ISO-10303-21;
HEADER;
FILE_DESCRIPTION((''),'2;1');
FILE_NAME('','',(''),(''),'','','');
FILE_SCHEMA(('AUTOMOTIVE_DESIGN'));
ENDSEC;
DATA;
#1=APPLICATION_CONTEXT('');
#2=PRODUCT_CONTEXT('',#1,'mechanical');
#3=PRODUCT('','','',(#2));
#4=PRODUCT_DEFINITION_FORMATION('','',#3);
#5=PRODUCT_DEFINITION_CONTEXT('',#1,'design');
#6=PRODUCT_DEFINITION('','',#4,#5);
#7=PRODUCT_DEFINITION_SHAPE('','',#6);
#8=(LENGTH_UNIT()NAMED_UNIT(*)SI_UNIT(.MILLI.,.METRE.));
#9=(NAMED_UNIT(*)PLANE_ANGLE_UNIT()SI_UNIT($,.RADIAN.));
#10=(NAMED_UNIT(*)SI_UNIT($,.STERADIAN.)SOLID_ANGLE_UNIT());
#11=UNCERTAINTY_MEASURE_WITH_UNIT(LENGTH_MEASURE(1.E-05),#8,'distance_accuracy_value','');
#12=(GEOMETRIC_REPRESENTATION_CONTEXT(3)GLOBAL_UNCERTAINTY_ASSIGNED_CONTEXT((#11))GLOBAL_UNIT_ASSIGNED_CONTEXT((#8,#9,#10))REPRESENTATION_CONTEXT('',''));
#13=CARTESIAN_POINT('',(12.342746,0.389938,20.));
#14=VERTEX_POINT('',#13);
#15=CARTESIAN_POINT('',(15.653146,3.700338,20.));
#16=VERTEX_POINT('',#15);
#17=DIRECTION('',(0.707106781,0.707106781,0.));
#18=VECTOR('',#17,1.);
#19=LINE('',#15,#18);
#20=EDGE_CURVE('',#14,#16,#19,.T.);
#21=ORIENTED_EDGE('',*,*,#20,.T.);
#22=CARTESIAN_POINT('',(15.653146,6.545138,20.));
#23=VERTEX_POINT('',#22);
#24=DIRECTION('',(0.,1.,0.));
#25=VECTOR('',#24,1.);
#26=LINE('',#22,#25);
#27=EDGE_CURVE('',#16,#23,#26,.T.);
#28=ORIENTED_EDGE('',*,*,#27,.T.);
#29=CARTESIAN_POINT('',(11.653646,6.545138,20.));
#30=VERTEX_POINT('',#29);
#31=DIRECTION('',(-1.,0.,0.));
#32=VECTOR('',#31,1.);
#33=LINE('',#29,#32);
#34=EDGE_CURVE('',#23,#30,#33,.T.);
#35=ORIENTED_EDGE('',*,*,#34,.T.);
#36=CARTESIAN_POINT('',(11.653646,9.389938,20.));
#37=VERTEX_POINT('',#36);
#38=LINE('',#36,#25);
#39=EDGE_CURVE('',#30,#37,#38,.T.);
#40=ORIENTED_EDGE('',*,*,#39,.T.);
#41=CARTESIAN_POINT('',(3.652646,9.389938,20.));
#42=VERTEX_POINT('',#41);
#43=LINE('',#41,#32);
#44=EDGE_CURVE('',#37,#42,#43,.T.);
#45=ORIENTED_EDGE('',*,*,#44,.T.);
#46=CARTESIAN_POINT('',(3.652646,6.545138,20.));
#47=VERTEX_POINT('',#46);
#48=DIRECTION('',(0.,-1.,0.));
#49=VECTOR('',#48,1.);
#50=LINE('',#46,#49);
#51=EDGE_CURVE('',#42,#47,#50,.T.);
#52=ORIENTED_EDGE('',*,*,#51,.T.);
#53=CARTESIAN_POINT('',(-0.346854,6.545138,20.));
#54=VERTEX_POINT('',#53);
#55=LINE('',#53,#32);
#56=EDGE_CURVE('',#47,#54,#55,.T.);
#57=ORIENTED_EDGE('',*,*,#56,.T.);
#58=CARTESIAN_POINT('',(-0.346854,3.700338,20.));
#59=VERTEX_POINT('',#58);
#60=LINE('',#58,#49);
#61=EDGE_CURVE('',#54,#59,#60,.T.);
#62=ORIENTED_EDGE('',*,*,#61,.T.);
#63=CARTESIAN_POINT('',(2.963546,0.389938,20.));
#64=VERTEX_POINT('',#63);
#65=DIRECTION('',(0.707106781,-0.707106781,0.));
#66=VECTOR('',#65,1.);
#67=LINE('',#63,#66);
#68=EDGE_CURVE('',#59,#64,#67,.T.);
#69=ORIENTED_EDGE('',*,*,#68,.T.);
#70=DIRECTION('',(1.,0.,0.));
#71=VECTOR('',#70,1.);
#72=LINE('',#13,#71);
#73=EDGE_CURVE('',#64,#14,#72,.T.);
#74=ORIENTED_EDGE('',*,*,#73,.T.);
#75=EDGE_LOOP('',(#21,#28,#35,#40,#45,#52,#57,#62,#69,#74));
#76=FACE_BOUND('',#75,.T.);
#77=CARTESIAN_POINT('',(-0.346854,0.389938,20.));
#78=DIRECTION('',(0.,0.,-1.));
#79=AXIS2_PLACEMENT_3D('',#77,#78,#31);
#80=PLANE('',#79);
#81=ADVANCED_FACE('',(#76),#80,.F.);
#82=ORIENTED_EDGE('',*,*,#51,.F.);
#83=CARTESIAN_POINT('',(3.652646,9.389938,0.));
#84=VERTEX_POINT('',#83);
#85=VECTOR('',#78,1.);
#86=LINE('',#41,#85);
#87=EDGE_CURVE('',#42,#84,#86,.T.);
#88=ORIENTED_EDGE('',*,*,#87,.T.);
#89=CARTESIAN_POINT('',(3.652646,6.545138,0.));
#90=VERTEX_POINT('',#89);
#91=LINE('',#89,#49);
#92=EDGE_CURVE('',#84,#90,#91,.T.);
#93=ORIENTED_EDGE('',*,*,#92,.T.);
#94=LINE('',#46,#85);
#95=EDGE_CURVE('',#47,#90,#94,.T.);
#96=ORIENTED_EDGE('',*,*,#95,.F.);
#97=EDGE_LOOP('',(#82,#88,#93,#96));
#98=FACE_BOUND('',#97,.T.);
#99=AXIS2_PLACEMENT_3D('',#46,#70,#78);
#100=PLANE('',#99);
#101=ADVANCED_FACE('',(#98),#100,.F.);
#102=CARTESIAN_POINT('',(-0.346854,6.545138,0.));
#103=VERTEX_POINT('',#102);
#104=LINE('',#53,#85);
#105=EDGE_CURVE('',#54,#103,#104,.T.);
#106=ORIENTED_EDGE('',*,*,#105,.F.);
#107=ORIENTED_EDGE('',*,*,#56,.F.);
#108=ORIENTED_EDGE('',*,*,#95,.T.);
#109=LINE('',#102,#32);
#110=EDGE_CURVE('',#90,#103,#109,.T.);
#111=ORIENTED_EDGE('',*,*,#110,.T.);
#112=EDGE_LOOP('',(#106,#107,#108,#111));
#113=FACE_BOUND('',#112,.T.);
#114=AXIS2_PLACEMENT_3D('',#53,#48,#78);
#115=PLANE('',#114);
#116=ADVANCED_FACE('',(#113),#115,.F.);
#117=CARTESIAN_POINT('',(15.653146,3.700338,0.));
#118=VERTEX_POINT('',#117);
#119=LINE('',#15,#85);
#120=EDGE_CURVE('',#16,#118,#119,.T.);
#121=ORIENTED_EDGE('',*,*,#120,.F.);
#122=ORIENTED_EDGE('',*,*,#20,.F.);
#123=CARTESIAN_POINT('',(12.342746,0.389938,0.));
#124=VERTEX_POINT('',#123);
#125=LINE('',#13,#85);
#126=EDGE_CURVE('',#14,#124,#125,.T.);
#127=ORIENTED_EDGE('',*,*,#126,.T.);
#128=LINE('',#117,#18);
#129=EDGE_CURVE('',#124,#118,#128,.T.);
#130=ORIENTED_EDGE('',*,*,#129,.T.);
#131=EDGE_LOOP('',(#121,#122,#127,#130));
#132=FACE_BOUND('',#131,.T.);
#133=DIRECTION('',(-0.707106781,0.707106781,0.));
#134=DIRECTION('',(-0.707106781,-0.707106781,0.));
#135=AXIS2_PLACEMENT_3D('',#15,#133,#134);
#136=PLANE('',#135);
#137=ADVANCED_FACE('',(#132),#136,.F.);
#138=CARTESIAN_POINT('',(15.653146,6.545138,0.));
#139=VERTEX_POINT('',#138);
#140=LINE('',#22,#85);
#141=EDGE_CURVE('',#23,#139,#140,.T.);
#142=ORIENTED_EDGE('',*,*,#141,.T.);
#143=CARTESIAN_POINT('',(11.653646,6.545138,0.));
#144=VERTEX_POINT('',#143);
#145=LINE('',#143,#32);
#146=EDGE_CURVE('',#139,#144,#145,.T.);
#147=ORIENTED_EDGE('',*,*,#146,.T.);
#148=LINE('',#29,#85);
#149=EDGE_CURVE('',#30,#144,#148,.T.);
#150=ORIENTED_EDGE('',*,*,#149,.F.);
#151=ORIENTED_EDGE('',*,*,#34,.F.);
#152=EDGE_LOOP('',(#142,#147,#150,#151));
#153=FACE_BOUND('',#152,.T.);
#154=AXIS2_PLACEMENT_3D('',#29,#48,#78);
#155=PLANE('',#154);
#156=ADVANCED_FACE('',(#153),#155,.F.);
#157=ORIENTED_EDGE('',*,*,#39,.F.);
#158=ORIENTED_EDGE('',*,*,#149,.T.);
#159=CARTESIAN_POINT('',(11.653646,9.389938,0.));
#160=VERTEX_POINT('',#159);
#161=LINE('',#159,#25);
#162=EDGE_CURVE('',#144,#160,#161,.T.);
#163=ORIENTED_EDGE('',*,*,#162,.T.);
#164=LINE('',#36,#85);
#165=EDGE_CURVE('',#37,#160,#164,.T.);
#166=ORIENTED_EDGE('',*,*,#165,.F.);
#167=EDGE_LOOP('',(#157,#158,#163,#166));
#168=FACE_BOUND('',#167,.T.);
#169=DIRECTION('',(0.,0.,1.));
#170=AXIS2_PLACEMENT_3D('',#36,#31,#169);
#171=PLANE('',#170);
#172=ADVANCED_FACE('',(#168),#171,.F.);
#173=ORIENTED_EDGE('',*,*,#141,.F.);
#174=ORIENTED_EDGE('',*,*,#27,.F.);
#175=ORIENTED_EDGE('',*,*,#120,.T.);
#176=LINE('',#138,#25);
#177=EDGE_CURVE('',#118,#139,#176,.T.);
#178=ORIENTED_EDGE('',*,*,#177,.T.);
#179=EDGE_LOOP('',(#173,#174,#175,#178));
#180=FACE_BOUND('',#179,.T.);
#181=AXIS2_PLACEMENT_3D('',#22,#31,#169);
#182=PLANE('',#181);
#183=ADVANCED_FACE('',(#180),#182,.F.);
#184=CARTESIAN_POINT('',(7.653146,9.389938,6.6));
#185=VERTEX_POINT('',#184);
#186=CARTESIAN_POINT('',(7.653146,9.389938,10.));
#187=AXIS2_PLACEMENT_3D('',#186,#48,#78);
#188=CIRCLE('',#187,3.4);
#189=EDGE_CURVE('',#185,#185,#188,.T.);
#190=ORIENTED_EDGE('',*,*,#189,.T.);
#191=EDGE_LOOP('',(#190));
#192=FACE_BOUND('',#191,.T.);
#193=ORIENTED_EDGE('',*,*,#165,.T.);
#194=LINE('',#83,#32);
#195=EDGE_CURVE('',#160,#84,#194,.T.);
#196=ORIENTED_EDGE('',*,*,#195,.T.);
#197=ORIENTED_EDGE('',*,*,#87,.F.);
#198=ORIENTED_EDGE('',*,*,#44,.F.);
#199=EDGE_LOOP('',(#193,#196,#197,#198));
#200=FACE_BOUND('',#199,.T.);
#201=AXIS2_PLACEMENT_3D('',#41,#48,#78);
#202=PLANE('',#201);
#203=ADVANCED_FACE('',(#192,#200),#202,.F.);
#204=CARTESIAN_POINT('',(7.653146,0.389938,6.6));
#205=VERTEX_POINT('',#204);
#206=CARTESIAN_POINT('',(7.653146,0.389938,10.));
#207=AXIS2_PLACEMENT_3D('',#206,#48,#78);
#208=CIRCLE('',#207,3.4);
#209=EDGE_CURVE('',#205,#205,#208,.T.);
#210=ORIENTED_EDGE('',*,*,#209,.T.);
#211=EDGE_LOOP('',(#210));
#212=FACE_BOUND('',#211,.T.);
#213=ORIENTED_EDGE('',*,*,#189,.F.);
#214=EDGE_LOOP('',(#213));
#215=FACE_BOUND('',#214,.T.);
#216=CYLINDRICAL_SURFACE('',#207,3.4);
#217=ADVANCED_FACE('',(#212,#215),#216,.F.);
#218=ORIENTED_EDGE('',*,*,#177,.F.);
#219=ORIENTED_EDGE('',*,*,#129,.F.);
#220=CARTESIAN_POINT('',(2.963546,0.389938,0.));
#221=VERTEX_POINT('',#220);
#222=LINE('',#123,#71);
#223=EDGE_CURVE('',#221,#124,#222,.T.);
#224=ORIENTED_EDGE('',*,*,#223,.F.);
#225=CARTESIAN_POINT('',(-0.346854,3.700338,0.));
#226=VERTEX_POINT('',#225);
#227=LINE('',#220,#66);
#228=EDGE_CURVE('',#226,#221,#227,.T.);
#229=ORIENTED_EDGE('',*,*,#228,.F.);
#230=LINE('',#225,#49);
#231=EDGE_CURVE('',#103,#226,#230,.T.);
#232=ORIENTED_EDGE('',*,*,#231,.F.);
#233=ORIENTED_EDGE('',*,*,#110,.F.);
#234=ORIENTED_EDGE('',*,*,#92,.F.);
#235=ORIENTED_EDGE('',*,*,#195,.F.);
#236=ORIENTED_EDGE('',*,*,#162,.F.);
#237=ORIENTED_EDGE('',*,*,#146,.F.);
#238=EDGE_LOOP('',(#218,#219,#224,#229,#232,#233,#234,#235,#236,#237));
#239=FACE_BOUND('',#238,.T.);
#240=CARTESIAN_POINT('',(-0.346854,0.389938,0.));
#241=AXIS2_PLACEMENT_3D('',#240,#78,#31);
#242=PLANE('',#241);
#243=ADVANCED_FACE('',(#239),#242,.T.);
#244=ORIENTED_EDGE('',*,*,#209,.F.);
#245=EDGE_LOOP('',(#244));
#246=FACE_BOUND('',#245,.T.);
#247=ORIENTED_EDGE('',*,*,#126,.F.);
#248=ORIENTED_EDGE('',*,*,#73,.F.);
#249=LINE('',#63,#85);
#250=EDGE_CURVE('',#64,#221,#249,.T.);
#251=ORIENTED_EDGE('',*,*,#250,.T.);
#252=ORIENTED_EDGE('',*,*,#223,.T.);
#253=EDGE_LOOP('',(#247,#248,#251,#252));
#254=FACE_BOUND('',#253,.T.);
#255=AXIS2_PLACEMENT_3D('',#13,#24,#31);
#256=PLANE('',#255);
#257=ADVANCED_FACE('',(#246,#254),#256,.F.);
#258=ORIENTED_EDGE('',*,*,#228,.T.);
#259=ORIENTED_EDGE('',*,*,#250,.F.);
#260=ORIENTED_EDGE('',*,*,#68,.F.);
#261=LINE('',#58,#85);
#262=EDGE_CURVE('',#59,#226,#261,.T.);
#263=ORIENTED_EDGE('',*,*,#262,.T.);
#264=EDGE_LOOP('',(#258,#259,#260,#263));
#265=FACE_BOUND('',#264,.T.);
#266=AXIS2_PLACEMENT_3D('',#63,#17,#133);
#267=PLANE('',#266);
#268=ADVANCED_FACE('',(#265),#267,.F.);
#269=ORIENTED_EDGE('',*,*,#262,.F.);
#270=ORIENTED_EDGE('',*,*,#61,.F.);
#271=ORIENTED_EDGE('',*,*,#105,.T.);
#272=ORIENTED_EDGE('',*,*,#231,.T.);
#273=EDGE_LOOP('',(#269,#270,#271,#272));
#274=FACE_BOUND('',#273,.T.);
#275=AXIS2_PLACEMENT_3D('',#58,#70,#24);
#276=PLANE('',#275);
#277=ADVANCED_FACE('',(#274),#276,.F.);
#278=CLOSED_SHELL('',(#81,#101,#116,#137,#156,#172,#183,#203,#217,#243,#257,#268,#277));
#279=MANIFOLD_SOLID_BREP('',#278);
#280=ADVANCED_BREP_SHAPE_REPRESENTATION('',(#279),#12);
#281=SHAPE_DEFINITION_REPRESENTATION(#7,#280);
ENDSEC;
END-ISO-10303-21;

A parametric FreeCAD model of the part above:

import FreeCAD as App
import Part
import Sketcher
from FreeCAD import Vector

doc = App.newDocument("Part")
body = doc.addObject("PartDesign::Body", "Body")

sketch1 = body.newObject("Sketcher::SketchObject", "Sketch")
sketch1.AttachmentSupport = (doc.getObject("XY_Plane"), [""])
sketch1.MapMode = "FlatFace"
sketch1.addGeometry(Part.LineSegment(Vector(-0.3, 3.7, 0), Vector(3, 0.4, 0)), False)
sketch1.addGeometry(Part.LineSegment(Vector(3, 0.4, 0), Vector(12.3, 0.4, 0)), False)
sketch1.addGeometry(Part.LineSegment(Vector(12.3, 0.4, 0), Vector(15.7, 3.7, 0)), False)
sketch1.addGeometry(Part.LineSegment(Vector(15.7, 3.7, 0), Vector(15.7, 6.5, 0)), False)
sketch1.addGeometry(Part.LineSegment(Vector(15.7, 6.5, 0), Vector(11.7, 6.5, 0)), False)
sketch1.addGeometry(Part.LineSegment(Vector(11.7, 6.5, 0), Vector(11.7, 9.4, 0)), False)
sketch1.addGeometry(Part.LineSegment(Vector(11.7, 9.4, 0), Vector(3.7, 9.4, 0)), False)
sketch1.addGeometry(Part.LineSegment(Vector(3.7, 9.4, 0), Vector(3.7, 6.5, 0)), False)
sketch1.addGeometry(Part.LineSegment(Vector(3.7, 6.5, 0), Vector(-0.3, 6.5, 0)), False)
sketch1.addGeometry(Part.LineSegment(Vector(-0.3, 6.5, 0), Vector(-0.3, 3.7, 0)), False)
sketch1.addConstraint(Sketcher.Constraint("Coincident", 0, 2, 1, 1))
sketch1.addConstraint(Sketcher.Constraint("Coincident", 1, 2, 2, 1))
sketch1.addConstraint(Sketcher.Constraint("Coincident", 2, 2, 3, 1))
sketch1.addConstraint(Sketcher.Constraint("Coincident", 3, 2, 4, 1))
sketch1.addConstraint(Sketcher.Constraint("Coincident", 4, 2, 5, 1))
sketch1.addConstraint(Sketcher.Constraint("Coincident", 5, 2, 6, 1))
sketch1.addConstraint(Sketcher.Constraint("Coincident", 6, 2, 7, 1))
sketch1.addConstraint(Sketcher.Constraint("Coincident", 7, 2, 8, 1))
sketch1.addConstraint(Sketcher.Constraint("Coincident", 8, 2, 9, 1))
sketch1.addConstraint(Sketcher.Constraint("Coincident", 9, 2, 0, 1))
sketch1.addConstraint(Sketcher.Constraint("Horizontal", 1))
sketch1.addConstraint(Sketcher.Constraint("Vertical", 3))
sketch1.addConstraint(Sketcher.Constraint("Horizontal", 4))
sketch1.addConstraint(Sketcher.Constraint("Vertical", 5))
sketch1.addConstraint(Sketcher.Constraint("Horizontal", 6))
sketch1.addConstraint(Sketcher.Constraint("Vertical", 7))
sketch1.addConstraint(Sketcher.Constraint("Horizontal", 8))
sketch1.addConstraint(Sketcher.Constraint("Vertical", 9))
sketch1.addConstraint(Sketcher.Constraint("Perpendicular", 0, 2))
sketch1.addConstraint(Sketcher.Constraint("Horizontal", 4, 2, 7, 2))
sketch1.addConstraint(Sketcher.Constraint("Horizontal", 2, 2, 9, 2))
sketch1.addConstraint(Sketcher.Constraint("Equal", 4, 8))
sketch1.addConstraint(Sketcher.Constraint("Equal", 3, 5))
sketch1.addConstraint(Sketcher.Constraint("Equal", 0, 2))
sketch1.addConstraint(Sketcher.Constraint("DistanceY", 1, 2, 5, 2, 9.0))
sketch1.addConstraint(Sketcher.Constraint("DistanceX", 6, 2, 6, 1, 8.001))
sketch1.addConstraint(Sketcher.Constraint("DistanceX", 1, 1, 1, 2, 9.3792))
sketch1.addConstraint(Sketcher.Constraint("DistanceX", 4, 2, 4, 1, 3.9995))
sketch1.addConstraint(Sketcher.Constraint("DistanceY", -1, 1, 0, 2, 0.389938))
sketch1.addConstraint(Sketcher.Constraint("DistanceX", -1, 1, 0, 2, 2.963546))
pad1 = body.newObject("PartDesign::Pad", "Pad")
pad1.Profile = sketch1
pad1.Length = 20

sketch2 = body.newObject("Sketcher::SketchObject", "Sketch001")
sketch2.AttachmentSupport = (doc.getObject("XZ_Plane"), [""])
sketch2.MapMode = "FlatFace"
sketch2.AttachmentOffset = App.Placement(Vector(0, 0, -0.389938), App.Rotation())
sketch2.addGeometry(Part.Circle(Vector(7.7, 10, 0), Vector(0, 0, 1), 3.4), False)
sketch2.addConstraint(Sketcher.Constraint("Diameter", 0, 6.8))
sketch2.addConstraint(Sketcher.Constraint("DistanceY", -1, 1, 0, 3, 10.0))
sketch2.addConstraint(Sketcher.Constraint("DistanceX", -1, 1, 0, 3, 7.653146))
doc.recompute()
hole = body.newObject("PartDesign::Hole", "Hole")
hole.Profile = sketch2
hole.ThreadType = "None"
hole.Diameter = 6.8
hole.DepthType = "ThroughAll"

doc.recompute()
